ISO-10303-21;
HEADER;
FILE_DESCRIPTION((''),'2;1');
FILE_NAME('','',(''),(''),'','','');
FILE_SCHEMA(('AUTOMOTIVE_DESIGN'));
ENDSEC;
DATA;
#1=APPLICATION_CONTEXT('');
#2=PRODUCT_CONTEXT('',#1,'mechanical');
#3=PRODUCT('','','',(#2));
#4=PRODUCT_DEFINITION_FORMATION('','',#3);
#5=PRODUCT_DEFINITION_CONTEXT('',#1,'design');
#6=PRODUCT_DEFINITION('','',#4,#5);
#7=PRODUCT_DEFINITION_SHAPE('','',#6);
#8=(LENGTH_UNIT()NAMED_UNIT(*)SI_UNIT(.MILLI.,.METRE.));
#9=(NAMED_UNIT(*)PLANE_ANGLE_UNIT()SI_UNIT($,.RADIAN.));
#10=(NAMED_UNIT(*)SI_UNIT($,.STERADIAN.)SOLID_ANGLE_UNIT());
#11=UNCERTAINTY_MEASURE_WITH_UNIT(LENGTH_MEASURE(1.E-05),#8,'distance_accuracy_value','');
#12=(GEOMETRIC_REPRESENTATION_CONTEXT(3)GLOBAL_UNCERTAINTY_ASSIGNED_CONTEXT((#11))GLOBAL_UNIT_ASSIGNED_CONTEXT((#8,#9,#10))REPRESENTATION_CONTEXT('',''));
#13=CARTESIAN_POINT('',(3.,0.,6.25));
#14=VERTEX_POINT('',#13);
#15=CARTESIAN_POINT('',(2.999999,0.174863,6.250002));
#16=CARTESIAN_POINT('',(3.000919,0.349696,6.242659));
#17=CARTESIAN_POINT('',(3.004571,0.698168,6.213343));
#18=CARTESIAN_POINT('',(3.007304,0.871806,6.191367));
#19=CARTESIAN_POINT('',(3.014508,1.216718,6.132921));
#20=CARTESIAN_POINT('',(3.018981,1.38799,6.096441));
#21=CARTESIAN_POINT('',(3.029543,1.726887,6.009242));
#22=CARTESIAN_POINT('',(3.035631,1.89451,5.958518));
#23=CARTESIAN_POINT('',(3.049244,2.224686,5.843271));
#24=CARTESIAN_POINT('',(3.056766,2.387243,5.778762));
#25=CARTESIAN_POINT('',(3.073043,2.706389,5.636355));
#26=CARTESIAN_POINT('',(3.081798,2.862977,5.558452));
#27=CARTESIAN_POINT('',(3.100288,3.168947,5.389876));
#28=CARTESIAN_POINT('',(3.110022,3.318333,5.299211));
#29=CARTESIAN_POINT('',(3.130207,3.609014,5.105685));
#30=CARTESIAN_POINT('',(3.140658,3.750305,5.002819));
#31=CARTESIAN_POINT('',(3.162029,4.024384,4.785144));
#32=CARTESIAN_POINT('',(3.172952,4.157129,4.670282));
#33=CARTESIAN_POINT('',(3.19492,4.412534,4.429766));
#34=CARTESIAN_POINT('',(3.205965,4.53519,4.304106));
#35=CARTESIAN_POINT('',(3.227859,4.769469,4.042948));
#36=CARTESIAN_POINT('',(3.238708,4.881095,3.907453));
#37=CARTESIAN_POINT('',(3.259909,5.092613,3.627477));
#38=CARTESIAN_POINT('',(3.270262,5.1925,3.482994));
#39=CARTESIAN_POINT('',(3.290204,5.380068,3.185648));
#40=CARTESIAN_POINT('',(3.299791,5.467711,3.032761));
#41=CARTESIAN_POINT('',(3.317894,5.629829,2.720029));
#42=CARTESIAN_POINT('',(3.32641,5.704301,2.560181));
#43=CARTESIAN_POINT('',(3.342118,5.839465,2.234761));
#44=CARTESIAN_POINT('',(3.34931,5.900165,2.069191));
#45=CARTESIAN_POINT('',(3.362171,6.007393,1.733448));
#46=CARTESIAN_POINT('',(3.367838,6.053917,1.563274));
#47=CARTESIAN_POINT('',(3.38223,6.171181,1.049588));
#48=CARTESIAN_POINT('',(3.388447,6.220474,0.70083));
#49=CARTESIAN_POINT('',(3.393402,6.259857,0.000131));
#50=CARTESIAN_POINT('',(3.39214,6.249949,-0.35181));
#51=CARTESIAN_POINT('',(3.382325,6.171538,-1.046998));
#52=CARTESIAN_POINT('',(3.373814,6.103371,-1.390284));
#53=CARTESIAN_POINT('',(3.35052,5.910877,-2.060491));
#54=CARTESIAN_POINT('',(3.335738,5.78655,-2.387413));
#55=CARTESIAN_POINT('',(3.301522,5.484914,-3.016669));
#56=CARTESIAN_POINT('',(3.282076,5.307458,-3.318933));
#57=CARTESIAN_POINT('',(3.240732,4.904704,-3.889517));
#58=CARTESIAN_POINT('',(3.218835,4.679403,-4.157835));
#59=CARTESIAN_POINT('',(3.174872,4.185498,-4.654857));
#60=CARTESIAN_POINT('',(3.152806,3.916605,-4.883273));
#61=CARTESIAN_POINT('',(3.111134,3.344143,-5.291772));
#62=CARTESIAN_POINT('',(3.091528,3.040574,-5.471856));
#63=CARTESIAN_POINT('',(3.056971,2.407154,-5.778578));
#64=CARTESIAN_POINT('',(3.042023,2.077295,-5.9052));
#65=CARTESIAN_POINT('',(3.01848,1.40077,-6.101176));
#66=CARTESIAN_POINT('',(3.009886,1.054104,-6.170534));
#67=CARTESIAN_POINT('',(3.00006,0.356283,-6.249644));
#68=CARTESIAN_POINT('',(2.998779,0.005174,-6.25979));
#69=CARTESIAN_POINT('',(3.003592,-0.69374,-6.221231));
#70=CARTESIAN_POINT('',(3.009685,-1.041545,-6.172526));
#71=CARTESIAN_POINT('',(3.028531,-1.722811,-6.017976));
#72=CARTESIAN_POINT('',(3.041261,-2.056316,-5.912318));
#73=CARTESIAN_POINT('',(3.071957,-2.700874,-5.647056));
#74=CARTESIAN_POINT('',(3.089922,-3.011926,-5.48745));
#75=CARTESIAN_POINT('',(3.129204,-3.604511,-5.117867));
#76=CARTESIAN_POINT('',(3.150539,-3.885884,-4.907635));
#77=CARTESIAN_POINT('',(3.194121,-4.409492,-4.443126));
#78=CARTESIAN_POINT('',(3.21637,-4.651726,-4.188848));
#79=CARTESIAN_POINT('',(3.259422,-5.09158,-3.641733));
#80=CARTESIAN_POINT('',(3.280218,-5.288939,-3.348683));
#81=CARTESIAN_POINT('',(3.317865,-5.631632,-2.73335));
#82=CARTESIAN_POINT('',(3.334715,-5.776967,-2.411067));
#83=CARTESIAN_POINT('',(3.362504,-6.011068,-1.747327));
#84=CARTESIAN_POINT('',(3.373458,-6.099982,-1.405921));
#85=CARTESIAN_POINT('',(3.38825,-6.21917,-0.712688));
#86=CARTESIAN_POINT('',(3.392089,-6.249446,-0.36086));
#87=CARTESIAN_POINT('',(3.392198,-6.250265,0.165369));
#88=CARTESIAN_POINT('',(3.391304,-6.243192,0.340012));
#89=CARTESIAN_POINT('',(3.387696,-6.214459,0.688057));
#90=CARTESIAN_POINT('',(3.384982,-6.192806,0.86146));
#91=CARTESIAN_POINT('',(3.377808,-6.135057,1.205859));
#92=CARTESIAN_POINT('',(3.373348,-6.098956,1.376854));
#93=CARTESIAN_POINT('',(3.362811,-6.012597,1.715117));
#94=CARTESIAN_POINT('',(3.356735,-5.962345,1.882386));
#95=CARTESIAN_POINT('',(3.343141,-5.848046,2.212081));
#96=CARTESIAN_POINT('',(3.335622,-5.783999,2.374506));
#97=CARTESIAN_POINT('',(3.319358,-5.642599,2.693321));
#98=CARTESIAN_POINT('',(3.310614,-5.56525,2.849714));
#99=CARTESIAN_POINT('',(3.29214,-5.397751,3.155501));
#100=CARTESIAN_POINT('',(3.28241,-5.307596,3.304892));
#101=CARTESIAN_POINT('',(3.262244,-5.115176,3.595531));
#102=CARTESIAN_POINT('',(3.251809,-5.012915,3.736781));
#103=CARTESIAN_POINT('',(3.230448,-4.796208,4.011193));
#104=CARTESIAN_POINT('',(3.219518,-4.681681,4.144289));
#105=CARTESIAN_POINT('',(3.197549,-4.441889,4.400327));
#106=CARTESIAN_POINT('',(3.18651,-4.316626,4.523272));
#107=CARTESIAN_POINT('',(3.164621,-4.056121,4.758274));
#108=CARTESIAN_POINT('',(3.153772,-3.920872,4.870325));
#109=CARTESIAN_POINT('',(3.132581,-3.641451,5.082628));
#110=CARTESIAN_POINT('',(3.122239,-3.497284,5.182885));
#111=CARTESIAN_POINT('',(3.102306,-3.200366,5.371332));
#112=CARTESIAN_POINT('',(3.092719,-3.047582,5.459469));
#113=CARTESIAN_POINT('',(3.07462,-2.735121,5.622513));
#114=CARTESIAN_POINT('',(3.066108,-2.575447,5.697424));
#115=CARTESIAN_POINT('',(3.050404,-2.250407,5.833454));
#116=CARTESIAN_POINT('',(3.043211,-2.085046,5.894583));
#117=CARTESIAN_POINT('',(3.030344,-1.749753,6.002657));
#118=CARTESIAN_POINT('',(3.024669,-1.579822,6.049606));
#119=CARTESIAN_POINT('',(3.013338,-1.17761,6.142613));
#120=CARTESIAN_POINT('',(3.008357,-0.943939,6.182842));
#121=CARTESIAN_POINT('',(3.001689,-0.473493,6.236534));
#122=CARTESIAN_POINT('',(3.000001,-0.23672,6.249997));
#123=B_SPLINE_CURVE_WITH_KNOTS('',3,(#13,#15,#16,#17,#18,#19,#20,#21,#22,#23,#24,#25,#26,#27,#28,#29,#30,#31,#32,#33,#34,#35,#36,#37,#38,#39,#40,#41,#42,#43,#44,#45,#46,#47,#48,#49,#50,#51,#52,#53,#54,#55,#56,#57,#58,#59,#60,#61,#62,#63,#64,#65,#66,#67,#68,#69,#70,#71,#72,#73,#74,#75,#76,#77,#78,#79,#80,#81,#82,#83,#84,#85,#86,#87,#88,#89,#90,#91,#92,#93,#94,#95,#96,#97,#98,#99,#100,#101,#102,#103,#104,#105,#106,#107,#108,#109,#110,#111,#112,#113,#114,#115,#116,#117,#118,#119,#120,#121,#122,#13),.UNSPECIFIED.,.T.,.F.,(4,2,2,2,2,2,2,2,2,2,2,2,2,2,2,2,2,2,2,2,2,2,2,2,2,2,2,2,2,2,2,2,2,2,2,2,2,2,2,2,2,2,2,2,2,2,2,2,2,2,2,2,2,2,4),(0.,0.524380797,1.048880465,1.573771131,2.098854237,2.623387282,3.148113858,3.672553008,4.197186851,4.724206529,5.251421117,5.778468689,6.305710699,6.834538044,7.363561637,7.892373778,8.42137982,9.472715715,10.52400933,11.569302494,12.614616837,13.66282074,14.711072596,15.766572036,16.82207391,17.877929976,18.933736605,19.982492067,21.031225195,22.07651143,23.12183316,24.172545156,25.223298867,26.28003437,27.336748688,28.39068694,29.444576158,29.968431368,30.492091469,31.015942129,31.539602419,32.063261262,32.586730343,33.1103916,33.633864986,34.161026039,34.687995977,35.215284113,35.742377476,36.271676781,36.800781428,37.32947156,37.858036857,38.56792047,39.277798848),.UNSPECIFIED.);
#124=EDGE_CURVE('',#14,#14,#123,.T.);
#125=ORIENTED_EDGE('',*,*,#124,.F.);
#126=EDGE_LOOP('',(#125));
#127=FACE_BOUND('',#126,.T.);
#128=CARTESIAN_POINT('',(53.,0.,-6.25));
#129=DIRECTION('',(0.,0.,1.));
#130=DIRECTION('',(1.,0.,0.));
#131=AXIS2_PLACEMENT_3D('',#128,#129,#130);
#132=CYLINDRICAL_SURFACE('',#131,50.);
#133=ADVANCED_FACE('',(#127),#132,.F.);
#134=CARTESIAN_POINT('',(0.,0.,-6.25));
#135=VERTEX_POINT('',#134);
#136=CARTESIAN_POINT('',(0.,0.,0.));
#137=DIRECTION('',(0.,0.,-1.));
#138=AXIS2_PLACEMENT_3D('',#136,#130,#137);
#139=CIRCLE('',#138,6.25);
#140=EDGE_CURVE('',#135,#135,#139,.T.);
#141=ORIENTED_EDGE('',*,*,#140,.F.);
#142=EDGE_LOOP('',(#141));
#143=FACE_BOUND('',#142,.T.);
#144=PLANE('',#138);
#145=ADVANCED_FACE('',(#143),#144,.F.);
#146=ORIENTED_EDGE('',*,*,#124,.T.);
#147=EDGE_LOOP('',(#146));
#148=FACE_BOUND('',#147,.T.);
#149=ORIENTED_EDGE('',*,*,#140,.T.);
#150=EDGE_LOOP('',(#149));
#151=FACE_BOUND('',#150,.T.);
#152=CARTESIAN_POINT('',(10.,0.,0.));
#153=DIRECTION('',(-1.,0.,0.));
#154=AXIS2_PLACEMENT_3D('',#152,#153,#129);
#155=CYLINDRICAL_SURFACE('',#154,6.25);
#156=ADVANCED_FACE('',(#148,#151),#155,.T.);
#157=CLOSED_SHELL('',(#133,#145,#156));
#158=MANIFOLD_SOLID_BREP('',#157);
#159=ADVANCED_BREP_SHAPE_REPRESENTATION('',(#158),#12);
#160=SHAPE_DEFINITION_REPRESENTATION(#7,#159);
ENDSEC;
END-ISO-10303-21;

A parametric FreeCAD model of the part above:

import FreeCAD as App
import Part
import Sketcher
from FreeCAD import Vector

doc = App.newDocument("Part")
body = doc.addObject("PartDesign::Body", "Body")

# Sketch on YZ plane
sketch1 = body.newObject("Sketcher::SketchObject", "Sketch")
sketch1.AttachmentSupport = (doc.getObject("YZ_Plane"), [""])
sketch1.MapMode = "FlatFace"
sketch1.addGeometry(Part.Circle(Vector(0, 0, 0), Vector(0, 0, 1), 6), False)
sketch1.addConstraint([
    Sketcher.Constraint("Coincident", 0, 3, -1, 1),
    Sketcher.Constraint("Diameter", 0, 12.5),
])
pad1 = body.newObject("PartDesign::Pad", "Pad")
pad1.Profile = sketch1
pad1.Length = 10

# Sketch on XY plane
sketch2 = body.newObject("Sketcher::SketchObject", "Sketch001")
sketch2.AttachmentSupport = (doc.getObject("XY_Plane"), [""])
sketch2.MapMode = "FlatFace"
sketch2.addGeometry(Part.Circle(Vector(53, 0, 0), Vector(0, 0, 1), 50), False)
sketch2.addConstraint([
    Sketcher.Constraint("PointOnObject", 0, 3, -1),
    Sketcher.Constraint("Diameter", 0, 100.0),
    Sketcher.Constraint("DistanceX", -1, 1, 0, 3, 53.0),
])
pocket1 = body.newObject("PartDesign::Pocket", "Pocket")
pocket1.Profile = sketch2
pocket1.Type = "ThroughAll"
pocket1.Midplane = True

doc.recompute()
